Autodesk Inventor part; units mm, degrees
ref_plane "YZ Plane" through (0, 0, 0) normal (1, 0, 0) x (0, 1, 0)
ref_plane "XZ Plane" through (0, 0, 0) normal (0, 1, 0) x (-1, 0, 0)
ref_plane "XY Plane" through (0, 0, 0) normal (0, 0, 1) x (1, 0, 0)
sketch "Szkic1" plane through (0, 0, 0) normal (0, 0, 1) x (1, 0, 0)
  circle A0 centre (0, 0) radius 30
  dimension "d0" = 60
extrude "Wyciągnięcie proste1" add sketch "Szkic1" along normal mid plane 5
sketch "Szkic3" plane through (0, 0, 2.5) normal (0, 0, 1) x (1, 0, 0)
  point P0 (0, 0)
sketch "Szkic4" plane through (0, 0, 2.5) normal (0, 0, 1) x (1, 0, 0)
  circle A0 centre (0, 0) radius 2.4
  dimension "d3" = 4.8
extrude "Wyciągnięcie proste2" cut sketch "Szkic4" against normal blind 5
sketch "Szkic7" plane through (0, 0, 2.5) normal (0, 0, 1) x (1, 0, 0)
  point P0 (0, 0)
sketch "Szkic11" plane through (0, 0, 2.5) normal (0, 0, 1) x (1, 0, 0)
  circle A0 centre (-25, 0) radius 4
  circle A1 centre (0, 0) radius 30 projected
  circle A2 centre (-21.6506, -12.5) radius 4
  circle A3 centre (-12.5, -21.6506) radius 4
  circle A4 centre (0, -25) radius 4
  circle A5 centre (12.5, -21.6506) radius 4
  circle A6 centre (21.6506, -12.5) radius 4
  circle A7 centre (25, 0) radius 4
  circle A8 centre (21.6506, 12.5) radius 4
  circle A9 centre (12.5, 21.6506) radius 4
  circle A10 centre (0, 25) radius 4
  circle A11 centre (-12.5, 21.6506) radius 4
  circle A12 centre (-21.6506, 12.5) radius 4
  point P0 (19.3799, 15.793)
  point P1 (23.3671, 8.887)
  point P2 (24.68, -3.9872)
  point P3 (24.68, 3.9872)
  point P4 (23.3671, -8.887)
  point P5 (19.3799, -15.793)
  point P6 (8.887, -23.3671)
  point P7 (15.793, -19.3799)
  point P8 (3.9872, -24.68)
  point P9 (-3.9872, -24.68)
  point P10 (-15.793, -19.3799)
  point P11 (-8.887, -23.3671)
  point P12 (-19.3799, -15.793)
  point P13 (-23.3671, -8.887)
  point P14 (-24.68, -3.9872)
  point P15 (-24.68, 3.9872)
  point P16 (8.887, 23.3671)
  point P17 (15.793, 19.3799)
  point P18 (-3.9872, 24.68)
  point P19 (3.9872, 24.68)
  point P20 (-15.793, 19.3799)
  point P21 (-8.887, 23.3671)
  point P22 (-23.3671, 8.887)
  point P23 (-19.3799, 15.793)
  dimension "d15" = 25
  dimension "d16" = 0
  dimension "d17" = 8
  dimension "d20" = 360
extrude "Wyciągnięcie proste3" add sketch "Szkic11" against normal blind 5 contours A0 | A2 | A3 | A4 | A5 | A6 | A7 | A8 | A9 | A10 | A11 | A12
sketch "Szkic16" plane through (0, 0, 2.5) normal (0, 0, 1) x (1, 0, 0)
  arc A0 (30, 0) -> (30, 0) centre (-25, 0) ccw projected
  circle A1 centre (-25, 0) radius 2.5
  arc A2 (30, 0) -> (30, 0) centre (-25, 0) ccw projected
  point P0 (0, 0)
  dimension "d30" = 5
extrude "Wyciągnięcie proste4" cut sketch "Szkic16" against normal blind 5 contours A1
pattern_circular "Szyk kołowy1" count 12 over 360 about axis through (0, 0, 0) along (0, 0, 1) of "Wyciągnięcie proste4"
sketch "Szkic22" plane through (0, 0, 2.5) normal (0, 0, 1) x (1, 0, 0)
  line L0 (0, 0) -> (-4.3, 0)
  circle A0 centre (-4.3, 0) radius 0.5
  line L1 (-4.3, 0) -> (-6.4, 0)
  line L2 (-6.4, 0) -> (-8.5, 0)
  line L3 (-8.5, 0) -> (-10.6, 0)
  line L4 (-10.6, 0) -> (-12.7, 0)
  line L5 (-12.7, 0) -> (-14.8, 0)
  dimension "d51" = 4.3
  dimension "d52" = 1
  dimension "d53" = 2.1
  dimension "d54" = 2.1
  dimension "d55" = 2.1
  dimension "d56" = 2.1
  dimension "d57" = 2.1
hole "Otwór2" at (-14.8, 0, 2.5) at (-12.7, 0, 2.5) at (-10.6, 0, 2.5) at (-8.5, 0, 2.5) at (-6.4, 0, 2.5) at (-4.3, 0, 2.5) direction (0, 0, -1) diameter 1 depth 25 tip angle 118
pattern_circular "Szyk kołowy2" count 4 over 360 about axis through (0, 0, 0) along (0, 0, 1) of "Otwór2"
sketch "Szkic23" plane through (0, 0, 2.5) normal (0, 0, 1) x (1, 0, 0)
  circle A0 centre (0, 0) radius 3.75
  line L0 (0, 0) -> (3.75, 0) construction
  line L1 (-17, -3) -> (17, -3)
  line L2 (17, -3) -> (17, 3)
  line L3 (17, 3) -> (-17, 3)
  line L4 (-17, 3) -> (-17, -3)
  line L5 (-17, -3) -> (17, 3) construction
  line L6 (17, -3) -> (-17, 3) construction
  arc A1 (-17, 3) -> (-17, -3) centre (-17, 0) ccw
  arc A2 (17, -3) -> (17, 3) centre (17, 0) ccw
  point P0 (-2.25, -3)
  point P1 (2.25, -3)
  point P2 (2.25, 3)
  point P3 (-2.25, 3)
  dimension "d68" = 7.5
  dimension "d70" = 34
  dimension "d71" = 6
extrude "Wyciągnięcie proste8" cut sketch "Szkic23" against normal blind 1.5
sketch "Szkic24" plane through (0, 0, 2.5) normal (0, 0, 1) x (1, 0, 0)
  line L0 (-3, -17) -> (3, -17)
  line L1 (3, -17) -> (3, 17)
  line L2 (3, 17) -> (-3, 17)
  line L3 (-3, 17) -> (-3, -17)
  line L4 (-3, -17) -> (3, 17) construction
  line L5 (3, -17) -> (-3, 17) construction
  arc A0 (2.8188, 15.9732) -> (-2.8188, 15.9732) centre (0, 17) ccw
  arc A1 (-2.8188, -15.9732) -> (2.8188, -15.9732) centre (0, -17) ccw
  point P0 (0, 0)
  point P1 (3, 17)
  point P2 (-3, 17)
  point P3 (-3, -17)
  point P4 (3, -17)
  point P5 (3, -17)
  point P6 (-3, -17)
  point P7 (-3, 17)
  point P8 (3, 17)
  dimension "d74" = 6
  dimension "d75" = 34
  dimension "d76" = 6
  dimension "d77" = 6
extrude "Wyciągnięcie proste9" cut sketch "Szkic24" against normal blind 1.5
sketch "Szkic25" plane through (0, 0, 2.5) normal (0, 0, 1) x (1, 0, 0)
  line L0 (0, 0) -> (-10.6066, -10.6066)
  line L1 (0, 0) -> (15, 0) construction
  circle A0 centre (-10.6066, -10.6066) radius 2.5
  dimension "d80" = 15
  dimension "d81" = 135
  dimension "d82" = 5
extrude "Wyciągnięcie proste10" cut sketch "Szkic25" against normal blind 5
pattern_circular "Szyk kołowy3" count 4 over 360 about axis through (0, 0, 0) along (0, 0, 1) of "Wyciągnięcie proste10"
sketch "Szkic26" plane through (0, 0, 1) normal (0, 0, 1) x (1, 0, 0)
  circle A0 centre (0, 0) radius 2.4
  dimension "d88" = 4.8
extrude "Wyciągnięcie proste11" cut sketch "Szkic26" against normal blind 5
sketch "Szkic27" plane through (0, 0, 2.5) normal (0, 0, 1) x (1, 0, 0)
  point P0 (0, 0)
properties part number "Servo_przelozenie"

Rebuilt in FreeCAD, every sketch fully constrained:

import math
import FreeCAD as App
import Part
import Sketcher

V = App.Vector

doc = App.newDocument("Part")
body = doc.addObject("PartDesign::Body", "Body")

# Sketch on XY plane
sketch1 = body.newObject("Sketcher::SketchObject", "Sketch")
sketch1.AttachmentSupport = (doc.getObject("XY_Plane"), [""])
sketch1.MapMode = "FlatFace"
sketch1.addGeometry(Part.Circle(V(0, 0, 0), V(0, 0, 1), 30), False)
sketch1.addConstraint([
    Sketcher.Constraint("Coincident", 0, 3, -1, 1),
    Sketcher.Constraint("Diameter", 0, 60.0),
])
pad1 = body.newObject("PartDesign::Pad", "Pad")
pad1.Profile = sketch1
pad1.Length = 5
pad1.Midplane = True

# Sketch on XY plane
sketch2 = body.newObject("Sketcher::SketchObject", "Sketch001")
sketch2.AttachmentSupport = (doc.getObject("XY_Plane"), [""])
sketch2.MapMode = "FlatFace"
sketch2.AttachmentOffset = App.Placement(V(0, 0, 2.5), App.Rotation())
sketch2.addGeometry(Part.Circle(V(0, 0, 0), V(0, 0, 1), 2.4), False)
sketch2.addConstraint([
    Sketcher.Constraint("Coincident", 0, 3, -1, 1),
    Sketcher.Constraint("Diameter", 0, 4.8),
])
pocket1 = body.newObject("PartDesign::Pocket", "Pocket")
pocket1.Profile = sketch2
pocket1.Length = 5

# Sketch on XY plane
sketch3 = body.newObject("Sketcher::SketchObject", "Sketch002")
sketch3.AttachmentSupport = (doc.getObject("XY_Plane"), [""])
sketch3.MapMode = "FlatFace"
sketch3.AttachmentOffset = App.Placement(V(0, 0, 2.5), App.Rotation())
sketch3.addGeometry([
    Part.Circle(V(-25, 0, 0), V(0, 0, 1), 4),  # 0
    Part.Circle(V(-21.7, -12.5, 0), V(0, 0, 1), 4),  # 1
    Part.Circle(V(-12.5, -21.7, 0), V(0, 0, 1), 4),  # 2
    Part.Circle(V(0, -25, 0), V(0, 0, 1), 4),  # 3
    Part.Circle(V(12.5, -21.7, 0), V(0, 0, 1), 4),  # 4
    Part.Circle(V(21.7, -12.5, 0), V(0, 0, 1), 4),  # 5
    Part.Circle(V(25, 0, 0), V(0, 0, 1), 4),  # 6
    Part.Circle(V(21.7, 12.5, 0), V(0, 0, 1), 4),  # 7
    Part.Circle(V(12.5, 21.7, 0), V(0, 0, 1), 4),  # 8
    Part.Circle(V(0, 25, 0), V(0, 0, 1), 4),  # 9
    Part.Circle(V(-12.5, 21.7, 0), V(0, 0, 1), 4),  # 10
    Part.Circle(V(-21.7, 12.5, 0), V(0, 0, 1), 4),  # 11
], False)
sketch3.addConstraint([
    Sketcher.Constraint("Equal", 0, 1),
    Sketcher.Constraint("Equal", 1, 2),
    Sketcher.Constraint("Equal", 2, 3),
    Sketcher.Constraint("Equal", 3, 4),
    Sketcher.Constraint("Equal", 4, 5),
    Sketcher.Constraint("Equal", 5, 6),
    Sketcher.Constraint("Equal", 6, 7),
    Sketcher.Constraint("Equal", 7, 8),
    Sketcher.Constraint("Equal", 8, 9),
    Sketcher.Constraint("Equal", 9, 10),
    Sketcher.Constraint("Equal", 10, 11),
    Sketcher.Constraint("Symmetric", 0, 3, 6, 3, -1, 1),
    Sketcher.Constraint("Symmetric", 1, 3, 7, 3, -1, 1),
    Sketcher.Constraint("Symmetric", 2, 3, 8, 3, -1, 1),
    Sketcher.Constraint("Symmetric", 3, 3, 9, 3, -1, 1),
    Sketcher.Constraint("Symmetric", 4, 3, 10, 3, -1, 1),
    Sketcher.Constraint("Symmetric", 5, 3, 11, 3, -1, 1),
    Sketcher.Constraint("Symmetric", 2, 3, 4, 3, -2),
    Sketcher.Constraint("Symmetric", 1, 3, 5, 3, -2),
    Sketcher.Constraint("PointOnObject", 0, 3, -1),
    Sketcher.Constraint("PointOnObject", 3, 3, -2),
    Sketcher.Constraint("Diameter", 0, 8.0),
    Sketcher.Constraint("DistanceX", 0, 3, -1, 1, 25.0),
    Sketcher.Constraint("DistanceY", 3, 3, -1, 1, 25.0),
    Sketcher.Constraint("DistanceX", 2, 3, 4, 3, 25.0),
    Sketcher.Constraint("DistanceY", 5, 3, 7, 3, 25.0),
    Sketcher.Constraint("DistanceX", 1, 3, -1, 1, 21.6506),
    Sketcher.Constraint("DistanceY", 2, 3, -1, 1, 21.6506),
])
pad2 = body.newObject("PartDesign::Pad", "Pad001")
pad2.Profile = sketch3
pad2.Length = 5
pad2.Reversed = True

# Sketch on XY plane
sketch4 = body.newObject("Sketcher::SketchObject", "Sketch003")
sketch4.AttachmentSupport = (doc.getObject("XY_Plane"), [""])
sketch4.MapMode = "FlatFace"
sketch4.AttachmentOffset = App.Placement(V(0, 0, 2.5), App.Rotation())
sketch4.addGeometry(Part.Circle(V(-25, 0, 0), V(0, 0, 1), 2.5), False)
sketch4.addConstraint([
    Sketcher.Constraint("PointOnObject", 0, 3, -1),
    Sketcher.Constraint("Diameter", 0, 5.0),
    Sketcher.Constraint("DistanceX", 0, 3, -1, 1, 25.0),
])
pocket2 = body.newObject("PartDesign::Pocket", "Pocket001")
pocket2.Profile = sketch4
pocket2.Length = 5
doc.recompute()

polarpattern = body.newObject("PartDesign::PolarPattern", "PolarPattern")
polarpattern.Originals = [pocket2]
polarpattern.Axis = (doc.getObject("Z_Axis"), [""])
polarpattern.Angle = 360
polarpattern.Occurrences = 12
body.Tip = polarpattern

# Sketch on XY plane
sketch5 = body.newObject("Sketcher::SketchObject", "Sketch004")
sketch5.AttachmentSupport = (doc.getObject("XY_Plane"), [""])
sketch5.MapMode = "FlatFace"
sketch5.AttachmentOffset = App.Placement(V(0, 0, 2.5), App.Rotation())
sketch5.addGeometry([
    Part.Circle(V(-14.8, 0, 0), V(0, 0, 1), 0.5),  # 0
    Part.Circle(V(-12.7, 0, 0), V(0, 0, 1), 0.5),  # 1
    Part.Circle(V(-10.6, 0, 0), V(0, 0, 1), 0.5),  # 2
    Part.Circle(V(-8.5, 0, 0), V(0, 0, 1), 0.5),  # 3
    Part.Circle(V(-6.4, 0, 0), V(0, 0, 1), 0.5),  # 4
    Part.Circle(V(-4.3, 0, 0), V(0, 0, 1), 0.5),  # 5
], False)
sketch5.addConstraint([
    Sketcher.Constraint("Equal", 0, 1),
    Sketcher.Constraint("Equal", 1, 2),
    Sketcher.Constraint("Equal", 2, 3),
    Sketcher.Constraint("Equal", 3, 4),
    Sketcher.Constraint("Equal", 4, 5),
    Sketcher.Constraint("PointOnObject", 0, 3, -1),
    Sketcher.Constraint("PointOnObject", 1, 3, -1),
    Sketcher.Constraint("PointOnObject", 2, 3, -1),
    Sketcher.Constraint("PointOnObject", 3, 3, -1),
    Sketcher.Constraint("PointOnObject", 4, 3, -1),
    Sketcher.Constraint("PointOnObject", 5, 3, -1),
    Sketcher.Constraint("Diameter", 0, 1.0),
    Sketcher.Constraint("DistanceX", 0, 3, -1, 1, 14.8),
    Sketcher.Constraint("DistanceX", 1, 3, -1, 1, 12.7),
    Sketcher.Constraint("DistanceX", 2, 3, -1, 1, 10.6),
    Sketcher.Constraint("DistanceX", 3, 3, -1, 1, 8.5),
    Sketcher.Constraint("DistanceX", 4, 3, -1, 1, 6.4),
    Sketcher.Constraint("DistanceX", 5, 3, -1, 1, 4.3),
])
doc.recompute()
hole = body.newObject("PartDesign::Hole", "Hole")
hole.Profile = sketch5
hole.ThreadType = "None"
hole.Diameter = 1
hole.DepthType = "Dimension"
hole.Depth = 25
hole.DrillPoint = "Angled"
hole.DrillPointAngle = 118
doc.recompute()

polarpattern2 = body.newObject("PartDesign::PolarPattern", "PolarPattern001")
polarpattern2.Originals = [hole]
polarpattern2.Axis = (doc.getObject("Z_Axis"), [""])
polarpattern2.Angle = 360
polarpattern2.Occurrences = 4
body.Tip = polarpattern2

# Sketch on XY plane
sketch6 = body.newObject("Sketcher::SketchObject", "Sketch005")
sketch6.AttachmentSupport = (doc.getObject("XY_Plane"), [""])
sketch6.MapMode = "FlatFace"
sketch6.AttachmentOffset = App.Placement(V(0, 0, 2.5), App.Rotation())
sketch6.addGeometry([
    Part.LineSegment(V(2.2, -3, 0), V(17, -3, 0)),  # 0
    Part.ArcOfCircle(Part.Circle(V(17, 0, 0), V(0, 0, 1), 3), math.radians(-90), math.radians(90)),  # 1
    Part.LineSegment(V(17, 3, 0), V(2.2, 3, 0)),  # 2
    Part.ArcOfCircle(Part.Circle(V(0, 0, 0), V(0, 0, 1), 3.8), math.radians(53), math.radians(127)),  # 3
    Part.LineSegment(V(-2.2, 3, 0), V(-17, 3, 0)),  # 4
    Part.ArcOfCircle(Part.Circle(V(-17, 0, 0), V(0, 0, 1), 3), math.radians(90), math.radians(270)),  # 5
    Part.LineSegment(V(-17, -3, 0), V(-2.2, -3, 0)),  # 6
    Part.ArcOfCircle(Part.Circle(V(0, 0, 0), V(0, 0, 1), 3.8), math.radians(-127), math.radians(-53)),  # 7
], False)
sketch6.addConstraint([
    Sketcher.Constraint("Tangent", 0, 2, 1, 1),
    Sketcher.Constraint("Tangent", 1, 2, 2, 1),
    Sketcher.Constraint("Coincident", 2, 2, 3, 1),
    Sketcher.Constraint("Coincident", 3, 2, 4, 1),
    Sketcher.Constraint("Tangent", 4, 2, 5, 1),
    Sketcher.Constraint("Tangent", 5, 2, 6, 1),
    Sketcher.Constraint("Coincident", 6, 2, 7, 1),
    Sketcher.Constraint("Coincident", 7, 2, 0, 1),
    Sketcher.Constraint("Horizontal", 0),
    Sketcher.Constraint("Horizontal", 2),
    Sketcher.Constraint("Horizontal", 4),
    Sketcher.Constraint("Horizontal", 6),
    Sketcher.Constraint("Coincident", 3, 3, -1, 1),
    Sketcher.Constraint("Coincident", 7, 3, -1, 1),
    Sketcher.Constraint("Equal", 1, 5),
    Sketcher.Constraint("Equal", 3, 7),
    Sketcher.Constraint("Symmetric", 1, 3, 5, 3, -1, 1),
    Sketcher.Constraint("PointOnObject", 1, 3, -1),
    Sketcher.Constraint("Radius", 1, 3.0),
    Sketcher.Constraint("Radius", 3, 3.75),
    Sketcher.Constraint("DistanceX", 5, 3, 1, 3, 34.0),
])
pocket3 = body.newObject("PartDesign::Pocket", "Pocket002")
pocket3.Profile = sketch6
pocket3.Length = 1.5

# Sketch on XY plane
sketch7 = body.newObject("Sketcher::SketchObject", "Sketch006")
sketch7.AttachmentSupport = (doc.getObject("XY_Plane"), [""])
sketch7.MapMode = "FlatFace"
sketch7.AttachmentOffset = App.Placement(V(0, 0, 2.5), App.Rotation())
sketch7.addGeometry([
    Part.LineSegment(V(-3, 17, 0), V(-3, -17, 0)),
    Part.ArcOfCircle(Part.Circle(V(0, -17, 0), V(0, 0, 1), 3), math.radians(180), math.radians(360)),
    Part.LineSegment(V(3, -17, 0), V(3, 17, 0)),
    Part.ArcOfCircle(Part.Circle(V(0, 17, 0), V(0, 0, 1), 3), math.radians(0), math.radians(180)),
], False)
sketch7.addConstraint([
    Sketcher.Constraint("Tangent", 0, 2, 1, 1),
    Sketcher.Constraint("Tangent", 1, 2, 2, 1),
    Sketcher.Constraint("Tangent", 2, 2, 3, 1),
    Sketcher.Constraint("Tangent", 3, 2, 0, 1),
    Sketcher.Constraint("Vertical", 0),
    Sketcher.Constraint("Vertical", 2),
    Sketcher.Constraint("Symmetric", 1, 3, 3, 3, -1, 1),
    Sketcher.Constraint("Radius", 1, 3.0),
    Sketcher.Constraint("DistanceY", 0, 2, 0, 1, 34.0),
])
pocket4 = body.newObject("PartDesign::Pocket", "Pocket003")
pocket4.Profile = sketch7
pocket4.Length = 1.5

# Sketch on XY plane
sketch8 = body.newObject("Sketcher::SketchObject", "Sketch007")
sketch8.AttachmentSupport = (doc.getObject("XY_Plane"), [""])
sketch8.MapMode = "FlatFace"
sketch8.AttachmentOffset = App.Placement(V(0, 0, 2.5), App.Rotation())
sketch8.addGeometry(Part.Circle(V(-10.6, -10.6, 0), V(0, 0, 1), 2.5), False)
sketch8.addConstraint([
    Sketcher.Constraint("Diameter", 0, 5.0),
    Sketcher.Constraint("DistanceX", 0, 3, -1, 1, 10.6066),
    Sketcher.Constraint("DistanceY", 0, 3, -1, 1, 10.6066),
])
pocket5 = body.newObject("PartDesign::Pocket", "Pocket004")
pocket5.Profile = sketch8
pocket5.Length = 5
doc.recompute()

polarpattern3 = body.newObject("PartDesign::PolarPattern", "PolarPattern002")
polarpattern3.Originals = [pocket5]
polarpattern3.Axis = (doc.getObject("Z_Axis"), [""])
polarpattern3.Angle = 360
polarpattern3.Occurrences = 4
body.Tip = polarpattern3

# Sketch on XY plane
sketch9 = body.newObject("Sketcher::SketchObject", "Sketch008")
sketch9.AttachmentSupport = (doc.getObject("XY_Plane"), [""])
sketch9.MapMode = "FlatFace"
sketch9.AttachmentOffset = App.Placement(V(0, 0, 1), App.Rotation())
sketch9.addGeometry(Part.Circle(V(0, 0, 0), V(0, 0, 1), 2.4), False)
sketch9.addConstraint([
    Sketcher.Constraint("Coincident", 0, 3, -1, 1),
    Sketcher.Constraint("Diameter", 0, 4.8),
])
pocket6 = body.newObject("PartDesign::Pocket", "Pocket005")
pocket6.Profile = sketch9
pocket6.Length = 5

doc.recompute()
